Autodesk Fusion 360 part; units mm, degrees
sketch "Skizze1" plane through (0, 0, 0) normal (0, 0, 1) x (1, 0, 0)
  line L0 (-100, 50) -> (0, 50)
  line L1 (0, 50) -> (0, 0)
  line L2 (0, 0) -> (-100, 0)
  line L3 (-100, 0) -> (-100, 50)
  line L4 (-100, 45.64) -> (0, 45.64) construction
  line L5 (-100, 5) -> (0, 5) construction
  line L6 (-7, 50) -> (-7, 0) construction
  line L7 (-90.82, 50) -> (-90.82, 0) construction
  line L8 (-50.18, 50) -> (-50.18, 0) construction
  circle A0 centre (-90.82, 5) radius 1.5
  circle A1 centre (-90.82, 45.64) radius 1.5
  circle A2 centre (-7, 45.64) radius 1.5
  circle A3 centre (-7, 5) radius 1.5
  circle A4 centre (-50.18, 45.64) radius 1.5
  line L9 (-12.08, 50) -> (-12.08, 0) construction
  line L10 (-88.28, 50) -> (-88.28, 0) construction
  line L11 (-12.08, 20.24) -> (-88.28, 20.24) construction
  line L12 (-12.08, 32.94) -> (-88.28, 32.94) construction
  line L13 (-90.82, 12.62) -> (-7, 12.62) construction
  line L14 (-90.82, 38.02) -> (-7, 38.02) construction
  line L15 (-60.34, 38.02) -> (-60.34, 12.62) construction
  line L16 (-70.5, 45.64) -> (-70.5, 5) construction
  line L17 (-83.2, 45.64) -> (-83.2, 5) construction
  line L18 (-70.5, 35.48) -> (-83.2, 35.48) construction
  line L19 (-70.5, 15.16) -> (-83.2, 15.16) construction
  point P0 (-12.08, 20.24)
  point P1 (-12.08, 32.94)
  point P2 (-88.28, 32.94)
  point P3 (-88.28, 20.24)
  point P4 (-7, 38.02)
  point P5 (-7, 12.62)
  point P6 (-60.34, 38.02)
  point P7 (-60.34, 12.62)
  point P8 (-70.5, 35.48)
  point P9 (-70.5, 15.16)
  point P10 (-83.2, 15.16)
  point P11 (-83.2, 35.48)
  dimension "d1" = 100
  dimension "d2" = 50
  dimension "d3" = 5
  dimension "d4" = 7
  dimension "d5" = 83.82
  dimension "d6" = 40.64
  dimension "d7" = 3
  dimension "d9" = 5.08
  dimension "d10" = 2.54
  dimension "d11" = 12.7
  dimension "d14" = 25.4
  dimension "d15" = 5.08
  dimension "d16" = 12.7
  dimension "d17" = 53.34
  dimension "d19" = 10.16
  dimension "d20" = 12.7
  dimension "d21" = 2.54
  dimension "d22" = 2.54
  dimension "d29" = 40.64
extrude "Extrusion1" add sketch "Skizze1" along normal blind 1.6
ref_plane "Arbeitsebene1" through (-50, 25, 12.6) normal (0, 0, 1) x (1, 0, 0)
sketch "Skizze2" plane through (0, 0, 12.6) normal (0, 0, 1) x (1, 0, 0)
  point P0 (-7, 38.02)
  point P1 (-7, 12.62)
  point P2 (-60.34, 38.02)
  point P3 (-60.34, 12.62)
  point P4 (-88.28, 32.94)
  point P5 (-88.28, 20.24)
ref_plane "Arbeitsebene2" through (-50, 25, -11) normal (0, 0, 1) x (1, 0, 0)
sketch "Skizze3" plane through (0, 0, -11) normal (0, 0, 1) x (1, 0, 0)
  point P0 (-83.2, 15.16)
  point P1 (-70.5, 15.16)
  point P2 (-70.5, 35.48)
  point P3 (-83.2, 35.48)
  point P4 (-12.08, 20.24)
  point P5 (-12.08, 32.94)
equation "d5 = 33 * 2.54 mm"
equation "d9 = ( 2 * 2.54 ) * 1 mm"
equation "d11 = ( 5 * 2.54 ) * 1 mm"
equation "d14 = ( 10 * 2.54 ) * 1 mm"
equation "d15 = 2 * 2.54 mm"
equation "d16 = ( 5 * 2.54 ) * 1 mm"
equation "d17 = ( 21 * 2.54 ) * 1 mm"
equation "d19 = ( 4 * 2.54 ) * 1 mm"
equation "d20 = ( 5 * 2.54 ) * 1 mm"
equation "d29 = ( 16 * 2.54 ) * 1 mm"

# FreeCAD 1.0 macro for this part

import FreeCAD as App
import Part
import Sketcher
from FreeCAD import Vector
Q = App.Units.Quantity


def add_polygon(sketch, points):
    """Adds a closed chain of lines whose ends are joined by coincident constraints."""
    first, n = sketch.GeometryCount, len(points)
    for a, b in zip(points, points[1:] + points[:1]):
        sketch.addGeometry(Part.LineSegment(App.Vector(*a, 0), App.Vector(*b, 0)), False)
    for i in range(n):
        sketch.addConstraint(Sketcher.Constraint("Coincident", first + i, 2, first + (i + 1) % n, 1))

doc = App.newDocument("Part")
body = doc.addObject("PartDesign::Body", "Body")

sketch1 = doc.addObject("Sketcher::SketchObject", "Sketch")
body.addObject(sketch1)
sketch1.AttachmentSupport = (doc.XY_Plane, [""])
sketch1.MapMode = "FlatFace"
add_polygon(sketch1, [(0, 50), (-100, 50), (-100, 0), (0, 0)])
sketch1.addGeometry(Part.Circle(Vector(-90.8, 5, 0), Vector(0, 0, 1), 1.5), False)
sketch1.addGeometry(Part.Circle(Vector(-7, 5, 0), Vector(0, 0, 1), 1.5), False)
sketch1.addGeometry(Part.Circle(Vector(-90.8, 45.6, 0), Vector(0, 0, 1), 1.5), False)
sketch1.addGeometry(Part.Circle(Vector(-50.2, 45.6, 0), Vector(0, 0, 1), 1.5), False)
sketch1.addGeometry(Part.Circle(Vector(-7, 45.6, 0), Vector(0, 0, 1), 1.5), False)
sketch1.addConstraint(Sketcher.Constraint("Horizontal", 0))
sketch1.addConstraint(Sketcher.Constraint("Vertical", 1))
sketch1.addConstraint(Sketcher.Constraint("Horizontal", 2))
sketch1.addConstraint(Sketcher.Constraint("Vertical", 3))
sketch1.addConstraint(Sketcher.Constraint("Coincident", 2, 2, -1, 1))
sketch1.addConstraint(Sketcher.Constraint("Equal", 4, 5))
sketch1.addConstraint(Sketcher.Constraint("Equal", 5, 6))
sketch1.addConstraint(Sketcher.Constraint("Equal", 6, 7))
sketch1.addConstraint(Sketcher.Constraint("Equal", 7, 8))
sketch1.addConstraint(Sketcher.Constraint("Horizontal", 4, 3, 5, 3))
sketch1.addConstraint(Sketcher.Constraint("Horizontal", 6, 3, 7, 3))
sketch1.addConstraint(Sketcher.Constraint("Horizontal", 7, 3, 8, 3))
sketch1.addConstraint(Sketcher.Constraint("Vertical", 4, 3, 6, 3))
sketch1.addConstraint(Sketcher.Constraint("Vertical", 5, 3, 8, 3))
sketch1.addConstraint(Sketcher.Constraint("Diameter", 4, Q("0.1181 in")))
sketch1.addConstraint(Sketcher.Constraint("DistanceX", 4, 3, 5, 3, Q("3.3 in")))
sketch1.addConstraint(Sketcher.Constraint("DistanceY", 4, 3, 6, 3, Q("1.6 in")))
sketch1.addConstraint(Sketcher.Constraint("DistanceX", 6, 3, 7, 3, Q("1.6 in")))
sketch1.addConstraint(Sketcher.Constraint("DistanceX", 0, 2, 0, 1, Q("3.937 in")))
sketch1.addConstraint(Sketcher.Constraint("DistanceY", 1, 2, 1, 1, Q("1.9685 in")))
sketch1.addConstraint(Sketcher.Constraint("DistanceX", 5, 3, -1, 1, Q("0.2756 in")))
sketch1.addConstraint(Sketcher.Constraint("DistanceY", -1, 1, 4, 3, 5.0))
pad1 = doc.addObject("PartDesign::Pad", "Pad")
body.addObject(pad1)
pad1.Profile = sketch1
pad1.Length = Q("0.0629921 in")

doc.recompute()
